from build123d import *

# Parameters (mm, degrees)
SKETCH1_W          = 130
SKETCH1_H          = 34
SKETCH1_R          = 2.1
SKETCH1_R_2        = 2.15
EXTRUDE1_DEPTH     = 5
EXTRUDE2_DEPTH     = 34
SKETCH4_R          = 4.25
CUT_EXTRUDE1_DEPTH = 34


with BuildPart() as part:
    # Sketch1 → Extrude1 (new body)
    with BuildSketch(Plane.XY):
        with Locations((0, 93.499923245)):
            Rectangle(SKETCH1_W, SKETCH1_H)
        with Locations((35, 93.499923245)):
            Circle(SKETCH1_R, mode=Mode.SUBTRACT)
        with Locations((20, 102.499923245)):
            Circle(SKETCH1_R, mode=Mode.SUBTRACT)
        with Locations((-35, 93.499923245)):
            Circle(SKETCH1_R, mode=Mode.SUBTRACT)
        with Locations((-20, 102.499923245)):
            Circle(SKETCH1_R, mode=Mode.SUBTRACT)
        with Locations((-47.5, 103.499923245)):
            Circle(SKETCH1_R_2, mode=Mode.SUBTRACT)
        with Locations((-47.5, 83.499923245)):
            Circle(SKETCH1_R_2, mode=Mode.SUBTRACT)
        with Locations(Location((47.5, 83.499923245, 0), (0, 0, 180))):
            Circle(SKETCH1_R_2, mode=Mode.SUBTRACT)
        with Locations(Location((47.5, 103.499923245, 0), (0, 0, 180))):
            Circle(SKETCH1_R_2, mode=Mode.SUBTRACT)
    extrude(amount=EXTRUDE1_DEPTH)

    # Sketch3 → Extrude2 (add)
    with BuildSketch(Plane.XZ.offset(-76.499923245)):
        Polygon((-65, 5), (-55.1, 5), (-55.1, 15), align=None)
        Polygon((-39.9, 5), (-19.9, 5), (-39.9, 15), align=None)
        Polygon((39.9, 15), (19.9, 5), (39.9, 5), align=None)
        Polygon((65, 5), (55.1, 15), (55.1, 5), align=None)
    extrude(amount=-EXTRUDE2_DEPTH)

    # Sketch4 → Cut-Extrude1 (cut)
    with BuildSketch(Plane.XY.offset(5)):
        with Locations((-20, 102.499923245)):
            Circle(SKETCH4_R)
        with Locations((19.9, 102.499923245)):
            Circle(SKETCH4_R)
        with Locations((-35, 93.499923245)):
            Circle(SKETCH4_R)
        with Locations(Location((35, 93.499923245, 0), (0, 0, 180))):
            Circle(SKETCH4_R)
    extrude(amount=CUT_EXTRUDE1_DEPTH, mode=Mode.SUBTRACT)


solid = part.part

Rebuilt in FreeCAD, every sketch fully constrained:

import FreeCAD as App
import Part
import Sketcher
from FreeCAD import Vector


def add_polygon(sketch, points):
    """Adds a closed chain of lines whose ends are joined by coincident constraints."""
    first, n = sketch.GeometryCount, len(points)
    for a, b in zip(points, points[1:] + points[:1]):
        sketch.addGeometry(Part.LineSegment(App.Vector(*a, 0), App.Vector(*b, 0)), False)
    for i in range(n):
        sketch.addConstraint(Sketcher.Constraint("Coincident", first + i, 2, first + (i + 1) % n, 1))

doc = App.newDocument("Part")
body = doc.addObject("PartDesign::Body", "Body")

sketch1 = doc.addObject("Sketcher::SketchObject", "Sketch")
body.addObject(sketch1)
sketch1.AttachmentSupport = (doc.XY_Plane, [""])
sketch1.MapMode = "FlatFace"
add_polygon(sketch1, [(-65, 110.5), (-65, 76.5), (65, 76.5), (65, 110.5)])
sketch1.addGeometry(Part.Circle(Vector(-47.5, 83.5, 0), Vector(0, 0, 1), 2.1), False)
sketch1.addGeometry(Part.Circle(Vector(47.5, 83.5, 0), Vector(0, 0, 1), 2.1), False)
sketch1.addGeometry(Part.Circle(Vector(-35, 93.5, 0), Vector(0, 0, 1), 2.1), False)
sketch1.addGeometry(Part.Circle(Vector(-47.5, 103.5, 0), Vector(0, 0, 1), 2.1), False)
sketch1.addGeometry(Part.Circle(Vector(-20, 102.5, 0), Vector(0, 0, 1), 2.1), False)
sketch1.addGeometry(Part.Circle(Vector(35, 93.5, 0), Vector(0, 0, 1), 2.1), False)
sketch1.addGeometry(Part.Circle(Vector(20, 102.5, 0), Vector(0, 0, 1), 2.1), False)
sketch1.addGeometry(Part.Circle(Vector(47.5, 103.5, 0), Vector(0, 0, 1), 2.1), False)
sketch1.addConstraint(Sketcher.Constraint("Vertical", 0))
sketch1.addConstraint(Sketcher.Constraint("Horizontal", 1))
sketch1.addConstraint(Sketcher.Constraint("Vertical", 2))
sketch1.addConstraint(Sketcher.Constraint("Horizontal", 3))
sketch1.addConstraint(Sketcher.Constraint("Equal", 4, 5))
sketch1.addConstraint(Sketcher.Constraint("Equal", 5, 7))
sketch1.addConstraint(Sketcher.Constraint("Equal", 6, 8))
sketch1.addConstraint(Sketcher.Constraint("Equal", 8, 9))
sketch1.addConstraint(Sketcher.Constraint("Equal", 9, 10))
sketch1.addConstraint(Sketcher.Constraint("Equal", 7, 11))
sketch1.addConstraint(Sketcher.Constraint("Symmetric", 4, 3, 5, 3, -2))
sketch1.addConstraint(Sketcher.Constraint("Symmetric", 6, 3, 9, 3, -2))
sketch1.addConstraint(Sketcher.Constraint("Symmetric", 8, 3, 10, 3, -2))
sketch1.addConstraint(Sketcher.Constraint("Symmetric", 7, 3, 11, 3, -2))
sketch1.addConstraint(Sketcher.Constraint("Vertical", 4, 3, 7, 3))
sketch1.addConstraint(Sketcher.Constraint("Diameter", 4, 4.3))
sketch1.addConstraint(Sketcher.Constraint("Diameter", 6, 4.2))
sketch1.addConstraint(Sketcher.Constraint("DistanceX", 1, 1, 1, 2, 130.0))
sketch1.addConstraint(Sketcher.Constraint("DistanceY", 0, 2, 0, 1, 34.0))
sketch1.addConstraint(Sketcher.Constraint("DistanceX", 6, 3, -1, 1, 35.0))
sketch1.addConstraint(Sketcher.Constraint("DistanceX", 8, 3, -1, 1, 20.0))
sketch1.addConstraint(Sketcher.Constraint("DistanceX", 0, 2, -1, 1, 65.0))
sketch1.addConstraint(Sketcher.Constraint("DistanceX", 4, 3, 5, 3, 95.0))
sketch1.addConstraint(Sketcher.Constraint("DistanceY", 4, 3, 6, 3, 10.0))
sketch1.addConstraint(Sketcher.Constraint("DistanceY", 6, 3, 7, 3, 10.0))
sketch1.addConstraint(Sketcher.Constraint("DistanceY", 6, 3, 8, 3, 9.0))
sketch1.addConstraint(Sketcher.Constraint("DistanceY", 0, 2, 4, 3, 7.0))
sketch1.addConstraint(Sketcher.Constraint("DistanceY", -1, 1, 4, 3, 83.499923))
pad1 = doc.addObject("PartDesign::Pad", "Pad")
body.addObject(pad1)
pad1.Profile = sketch1
pad1.Length = 5

sketch2 = doc.addObject("Sketcher::SketchObject", "Sketch001")
body.addObject(sketch2)
sketch2.AttachmentSupport = (doc.XZ_Plane, [""])
sketch2.MapMode = "FlatFace"
sketch2.AttachmentOffset = App.Placement(Vector(0, 0, -76.499923), App.Rotation())
add_polygon(sketch2, [(-65, 5), (-55, 5), (-55, 15)])
add_polygon(sketch2, [(-40, 5), (-20, 5), (-40, 15)])
add_polygon(sketch2, [(40, 15), (20, 5), (40, 5)])
add_polygon(sketch2, [(65, 5), (55, 15), (55, 5)])
sketch2.addConstraint(Sketcher.Constraint("Horizontal", 0))
sketch2.addConstraint(Sketcher.Constraint("Vertical", 1))
sketch2.addConstraint(Sketcher.Constraint("Horizontal", 3))
sketch2.addConstraint(Sketcher.Constraint("Vertical", 5))
sketch2.addConstraint(Sketcher.Constraint("Horizontal", 7))
sketch2.addConstraint(Sketcher.Constraint("Vertical", 8))
sketch2.addConstraint(Sketcher.Constraint("Vertical", 10))
sketch2.addConstraint(Sketcher.Constraint("Horizontal", 11))
sketch2.addConstraint(Sketcher.Constraint("Symmetric", 3, 2, 6, 2, -2))
sketch2.addConstraint(Sketcher.Constraint("Symmetric", 4, 2, 8, 2, -2))
sketch2.addConstraint(Sketcher.Constraint("Symmetric", 1, 2, 9, 2, -2))
sketch2.addConstraint(Sketcher.Constraint("Symmetric", 2, 2, 11, 2, -2))
sketch2.addConstraint(Sketcher.Constraint("Horizontal", 2, 2, 3, 2))
sketch2.addConstraint(Sketcher.Constraint("Horizontal", 1, 2, 4, 2))
sketch2.addConstraint(Sketcher.Constraint("DistanceX", 3, 1, 3, 2, 20.0))
sketch2.addConstraint(Sketcher.Constraint("DistanceY", 1, 1, 1, 2, 10.0))
sketch2.addConstraint(Sketcher.Constraint("DistanceX", 0, 1, 0, 2, 9.9))
sketch2.addConstraint(Sketcher.Constraint("DistanceY", -1, 1, 0, 2, 5.0))
sketch2.addConstraint(Sketcher.Constraint("DistanceX", 2, 2, -1, 1, 65.0))
sketch2.addConstraint(Sketcher.Constraint("DistanceX", 0, 2, 6, 2, 75.0))
pad2 = doc.addObject("PartDesign::Pad", "Pad001")
body.addObject(pad2)
pad2.Profile = sketch2
pad2.Length = 34
pad2.Reversed = True

sketch3 = doc.addObject("Sketcher::SketchObject", "Sketch002")
body.addObject(sketch3)
sketch3.AttachmentSupport = (doc.XY_Plane, [""])
sketch3.MapMode = "FlatFace"
sketch3.AttachmentOffset = App.Placement(Vector(0, 0, 5), App.Rotation())
sketch3.addGeometry(Part.Circle(Vector(-20, 102.5, 0), Vector(0, 0, 1), 4.2), False)
sketch3.addGeometry(Part.Circle(Vector(19.9, 102.5, 0), Vector(0, 0, 1), 4.2), False)
sketch3.addGeometry(Part.Circle(Vector(-35, 93.5, 0), Vector(0, 0, 1), 4.2), False)
sketch3.addGeometry(Part.Circle(Vector(35, 93.5, 0), Vector(0, 0, 1), 4.2), False)
sketch3.addConstraint(Sketcher.Constraint("Equal", 0, 1))
sketch3.addConstraint(Sketcher.Constraint("Equal", 1, 2))
sketch3.addConstraint(Sketcher.Constraint("Equal", 2, 3))
sketch3.addConstraint(Sketcher.Constraint("Symmetric", 2, 3, 3, 3, -2))
sketch3.addConstraint(Sketcher.Constraint("Horizontal", 0, 3, 1, 3))
sketch3.addConstraint(Sketcher.Constraint("Diameter", 0, 8.5))
sketch3.addConstraint(Sketcher.Constraint("DistanceX", 0, 3, -1, 1, 20.0))
sketch3.addConstraint(Sketcher.Constraint("DistanceX", 2, 3, -1, 1, 35.0))
sketch3.addConstraint(Sketcher.Constraint("DistanceY", 2, 3, 0, 3, 9.0))
sketch3.addConstraint(Sketcher.Constraint("DistanceX", -1, 1, 1, 3, 19.9))
sketch3.addConstraint(Sketcher.Constraint("DistanceY", -1, 1, 0, 3, 102.499923))
pocket1 = doc.addObject("PartDesign::Pocket", "Pocket")
body.addObject(pocket1)
pocket1.Profile = sketch3
pocket1.Length = 34
pocket1.Reversed = True

doc.recompute()
